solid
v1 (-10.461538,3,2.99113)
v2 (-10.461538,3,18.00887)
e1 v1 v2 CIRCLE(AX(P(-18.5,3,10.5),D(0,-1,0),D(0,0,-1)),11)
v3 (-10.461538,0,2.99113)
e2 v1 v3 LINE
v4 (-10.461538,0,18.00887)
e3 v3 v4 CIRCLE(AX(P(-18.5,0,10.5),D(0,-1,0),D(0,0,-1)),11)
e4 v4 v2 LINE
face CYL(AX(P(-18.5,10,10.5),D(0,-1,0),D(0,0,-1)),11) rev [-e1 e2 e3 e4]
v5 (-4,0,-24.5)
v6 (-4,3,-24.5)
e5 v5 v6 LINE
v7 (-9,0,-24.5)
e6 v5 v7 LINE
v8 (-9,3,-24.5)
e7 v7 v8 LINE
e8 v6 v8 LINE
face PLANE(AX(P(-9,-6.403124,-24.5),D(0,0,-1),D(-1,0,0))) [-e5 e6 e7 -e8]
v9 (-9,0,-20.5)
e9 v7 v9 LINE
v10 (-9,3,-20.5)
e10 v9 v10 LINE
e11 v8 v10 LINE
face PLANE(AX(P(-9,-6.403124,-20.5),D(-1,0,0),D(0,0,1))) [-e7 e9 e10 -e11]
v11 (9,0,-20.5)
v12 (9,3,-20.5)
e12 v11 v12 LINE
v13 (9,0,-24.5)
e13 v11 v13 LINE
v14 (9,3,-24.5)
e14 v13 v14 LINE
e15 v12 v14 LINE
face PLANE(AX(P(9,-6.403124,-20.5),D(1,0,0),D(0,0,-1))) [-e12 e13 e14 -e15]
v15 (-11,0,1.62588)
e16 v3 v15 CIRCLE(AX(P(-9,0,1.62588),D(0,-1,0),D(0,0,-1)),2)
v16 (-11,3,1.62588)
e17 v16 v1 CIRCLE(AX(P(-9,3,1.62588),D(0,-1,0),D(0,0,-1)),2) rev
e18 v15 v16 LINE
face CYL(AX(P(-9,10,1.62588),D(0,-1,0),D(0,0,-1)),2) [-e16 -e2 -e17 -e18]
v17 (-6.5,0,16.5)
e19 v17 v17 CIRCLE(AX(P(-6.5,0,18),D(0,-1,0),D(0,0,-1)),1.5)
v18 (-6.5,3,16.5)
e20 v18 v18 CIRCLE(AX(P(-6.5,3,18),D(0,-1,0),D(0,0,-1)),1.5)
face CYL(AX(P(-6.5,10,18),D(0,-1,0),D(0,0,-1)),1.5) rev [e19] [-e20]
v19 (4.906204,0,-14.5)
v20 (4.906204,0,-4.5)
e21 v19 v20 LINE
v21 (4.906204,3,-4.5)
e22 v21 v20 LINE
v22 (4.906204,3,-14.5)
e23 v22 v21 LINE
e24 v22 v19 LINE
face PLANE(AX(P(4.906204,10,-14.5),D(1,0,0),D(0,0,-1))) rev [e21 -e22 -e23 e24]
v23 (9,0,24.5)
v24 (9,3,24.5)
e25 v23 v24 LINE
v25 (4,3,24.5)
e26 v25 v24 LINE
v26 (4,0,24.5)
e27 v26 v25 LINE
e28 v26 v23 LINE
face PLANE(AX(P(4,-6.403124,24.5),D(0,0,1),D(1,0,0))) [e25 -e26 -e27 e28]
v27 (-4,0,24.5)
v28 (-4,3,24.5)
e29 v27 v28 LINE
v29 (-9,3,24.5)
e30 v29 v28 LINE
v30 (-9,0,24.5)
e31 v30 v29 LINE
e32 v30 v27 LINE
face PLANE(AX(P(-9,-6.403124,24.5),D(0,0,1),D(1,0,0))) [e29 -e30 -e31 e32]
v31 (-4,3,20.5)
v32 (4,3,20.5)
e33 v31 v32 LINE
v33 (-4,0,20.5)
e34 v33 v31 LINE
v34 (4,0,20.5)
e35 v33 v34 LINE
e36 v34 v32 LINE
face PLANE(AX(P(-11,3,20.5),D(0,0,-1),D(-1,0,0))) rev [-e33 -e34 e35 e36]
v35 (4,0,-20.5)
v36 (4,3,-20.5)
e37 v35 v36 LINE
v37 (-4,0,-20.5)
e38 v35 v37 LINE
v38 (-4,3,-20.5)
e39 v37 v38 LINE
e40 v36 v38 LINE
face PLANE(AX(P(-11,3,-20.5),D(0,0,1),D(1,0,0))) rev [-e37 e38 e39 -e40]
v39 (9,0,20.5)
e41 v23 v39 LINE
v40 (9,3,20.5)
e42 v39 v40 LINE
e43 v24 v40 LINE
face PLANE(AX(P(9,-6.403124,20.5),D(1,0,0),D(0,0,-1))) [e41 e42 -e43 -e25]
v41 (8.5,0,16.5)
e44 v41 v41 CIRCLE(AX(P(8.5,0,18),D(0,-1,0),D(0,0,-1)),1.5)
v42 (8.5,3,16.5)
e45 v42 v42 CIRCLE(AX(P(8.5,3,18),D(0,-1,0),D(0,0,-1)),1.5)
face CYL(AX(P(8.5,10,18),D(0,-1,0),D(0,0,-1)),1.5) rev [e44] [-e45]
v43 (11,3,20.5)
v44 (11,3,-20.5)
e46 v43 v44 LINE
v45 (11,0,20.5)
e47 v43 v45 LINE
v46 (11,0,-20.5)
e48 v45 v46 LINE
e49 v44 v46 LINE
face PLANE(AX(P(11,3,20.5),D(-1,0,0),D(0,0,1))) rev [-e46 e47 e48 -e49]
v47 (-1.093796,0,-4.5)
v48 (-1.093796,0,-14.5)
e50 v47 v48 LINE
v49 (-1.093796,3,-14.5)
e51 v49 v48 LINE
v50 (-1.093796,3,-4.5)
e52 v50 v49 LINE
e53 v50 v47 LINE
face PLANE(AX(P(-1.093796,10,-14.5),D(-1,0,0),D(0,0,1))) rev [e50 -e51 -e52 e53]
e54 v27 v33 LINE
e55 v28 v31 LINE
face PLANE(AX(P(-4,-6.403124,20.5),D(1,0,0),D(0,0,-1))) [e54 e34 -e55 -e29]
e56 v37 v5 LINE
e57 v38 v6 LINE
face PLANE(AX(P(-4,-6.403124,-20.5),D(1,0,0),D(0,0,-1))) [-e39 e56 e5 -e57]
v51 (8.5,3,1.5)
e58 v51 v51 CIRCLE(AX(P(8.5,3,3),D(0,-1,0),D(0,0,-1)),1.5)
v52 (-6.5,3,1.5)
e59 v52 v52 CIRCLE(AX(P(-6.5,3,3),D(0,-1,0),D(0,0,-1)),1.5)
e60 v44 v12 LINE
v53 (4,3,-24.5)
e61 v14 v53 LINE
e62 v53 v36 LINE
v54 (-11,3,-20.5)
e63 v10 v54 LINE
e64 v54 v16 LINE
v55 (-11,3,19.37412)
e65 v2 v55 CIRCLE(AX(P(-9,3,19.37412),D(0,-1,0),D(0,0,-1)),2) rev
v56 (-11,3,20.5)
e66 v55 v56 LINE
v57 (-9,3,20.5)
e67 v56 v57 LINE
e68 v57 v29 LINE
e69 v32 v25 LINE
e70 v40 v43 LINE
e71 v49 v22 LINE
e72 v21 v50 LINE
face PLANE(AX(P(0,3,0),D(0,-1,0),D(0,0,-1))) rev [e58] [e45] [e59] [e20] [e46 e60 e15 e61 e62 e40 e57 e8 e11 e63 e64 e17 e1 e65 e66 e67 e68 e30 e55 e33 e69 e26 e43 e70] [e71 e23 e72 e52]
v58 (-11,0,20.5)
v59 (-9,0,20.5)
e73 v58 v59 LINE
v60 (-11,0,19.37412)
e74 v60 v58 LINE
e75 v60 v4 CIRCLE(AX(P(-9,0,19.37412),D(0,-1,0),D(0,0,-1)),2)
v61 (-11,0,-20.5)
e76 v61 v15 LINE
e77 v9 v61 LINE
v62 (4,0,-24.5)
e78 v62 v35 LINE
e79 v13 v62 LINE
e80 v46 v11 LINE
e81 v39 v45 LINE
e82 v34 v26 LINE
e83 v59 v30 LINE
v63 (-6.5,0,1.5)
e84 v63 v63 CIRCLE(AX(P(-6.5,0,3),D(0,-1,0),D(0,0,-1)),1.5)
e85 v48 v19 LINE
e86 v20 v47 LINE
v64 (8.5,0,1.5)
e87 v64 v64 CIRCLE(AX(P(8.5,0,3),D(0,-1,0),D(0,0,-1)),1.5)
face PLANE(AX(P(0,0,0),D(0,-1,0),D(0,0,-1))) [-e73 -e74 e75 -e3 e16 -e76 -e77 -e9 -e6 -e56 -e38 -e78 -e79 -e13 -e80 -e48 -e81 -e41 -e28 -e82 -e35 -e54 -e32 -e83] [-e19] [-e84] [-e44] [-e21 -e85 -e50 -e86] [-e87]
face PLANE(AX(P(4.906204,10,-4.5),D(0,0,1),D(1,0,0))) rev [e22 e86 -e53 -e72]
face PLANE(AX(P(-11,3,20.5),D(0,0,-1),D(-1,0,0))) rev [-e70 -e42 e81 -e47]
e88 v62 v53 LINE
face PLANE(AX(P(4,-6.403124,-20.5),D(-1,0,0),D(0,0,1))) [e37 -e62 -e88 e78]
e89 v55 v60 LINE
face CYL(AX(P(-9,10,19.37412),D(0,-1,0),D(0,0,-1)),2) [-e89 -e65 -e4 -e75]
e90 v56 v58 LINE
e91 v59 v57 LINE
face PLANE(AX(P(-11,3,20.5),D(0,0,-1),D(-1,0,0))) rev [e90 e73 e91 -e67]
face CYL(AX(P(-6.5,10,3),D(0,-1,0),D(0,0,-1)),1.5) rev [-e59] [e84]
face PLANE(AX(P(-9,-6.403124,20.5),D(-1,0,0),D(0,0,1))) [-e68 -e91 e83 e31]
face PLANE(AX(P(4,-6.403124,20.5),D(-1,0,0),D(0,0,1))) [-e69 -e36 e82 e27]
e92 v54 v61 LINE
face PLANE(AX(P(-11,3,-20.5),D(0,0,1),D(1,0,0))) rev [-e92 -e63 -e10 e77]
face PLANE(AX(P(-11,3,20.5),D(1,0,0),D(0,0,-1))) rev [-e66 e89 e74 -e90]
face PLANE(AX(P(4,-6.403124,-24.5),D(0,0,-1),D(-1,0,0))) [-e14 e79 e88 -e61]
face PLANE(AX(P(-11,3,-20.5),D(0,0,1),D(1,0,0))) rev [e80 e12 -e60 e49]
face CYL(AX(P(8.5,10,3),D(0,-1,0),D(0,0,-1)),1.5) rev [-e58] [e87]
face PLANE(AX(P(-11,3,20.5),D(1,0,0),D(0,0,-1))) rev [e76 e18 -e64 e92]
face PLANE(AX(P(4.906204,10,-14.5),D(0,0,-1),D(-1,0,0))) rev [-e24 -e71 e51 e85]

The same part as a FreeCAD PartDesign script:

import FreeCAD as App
import Part
import Sketcher
from FreeCAD import Vector


def edges_at(feature, points):
    """Names of the edges that pass closest to the given points."""
    edges = feature.Shape.Edges
    near = lambda p: min(range(len(edges)), key=lambda i: edges[i].distToShape(Part.Vertex(*p))[0])
    return sorted({f"Edge{near(p) + 1}" for p in points})

doc = App.newDocument("Part")
body = doc.addObject("PartDesign::Body", "Body")

# Sketch on XZ plane
sketch1 = body.newObject("Sketcher::SketchObject", "Sketch")
sketch1.AttachmentSupport = (doc.getObject("XZ_Plane"), [""])
sketch1.MapMode = "FlatFace"
sketch1.addGeometry(Part.LineSegment(Vector(-11, -20, 0), Vector(-11, 20, 0)), False)
sketch1.addGeometry(Part.LineSegment(Vector(-11, 20, 0), Vector(11, 20, 0)), False)
sketch1.addGeometry(Part.LineSegment(Vector(11, 20, 0), Vector(11, -20, 0)), False)
sketch1.addGeometry(Part.LineSegment(Vector(11, -20, 0), Vector(-11, -20, 0)), False)
sketch1.addConstraint(Sketcher.Constraint("Coincident", 0, 2, 1, 1))
sketch1.addConstraint(Sketcher.Constraint("Coincident", 1, 2, 2, 1))
sketch1.addConstraint(Sketcher.Constraint("Coincident", 2, 2, 3, 1))
sketch1.addConstraint(Sketcher.Constraint("Coincident", 3, 2, 0, 1))
sketch1.addConstraint(Sketcher.Constraint("Vertical", 0))
sketch1.addConstraint(Sketcher.Constraint("Horizontal", 1))
sketch1.addConstraint(Sketcher.Constraint("Vertical", 2))
sketch1.addConstraint(Sketcher.Constraint("Horizontal", 3))
sketch1.addConstraint(Sketcher.Constraint("Symmetric", 0, 2, 2, 2, -1, 1))
sketch1.addConstraint(Sketcher.Constraint("DistanceX", 1, 1, 1, 2, 22.0))
sketch1.addConstraint(Sketcher.Constraint("DistanceY", 0, 1, 0, 2, 41.0))
pad1 = body.newObject("PartDesign::Pad", "Pad")
pad1.Profile = sketch1
pad1.Length = 3
pad1.Reversed = True

# Sketch on XZ plane
sketch2 = body.newObject("Sketcher::SketchObject", "Sketch001")
sketch2.AttachmentSupport = (doc.getObject("XZ_Plane"), [""])
sketch2.MapMode = "FlatFace"
sketch2.AttachmentOffset = App.Placement(Vector(0, 0, -3), App.Rotation())
sketch2.addGeometry(Part.LineSegment(Vector(-9, -24.5, 0), Vector(-9, -20.5, 0)), False)
sketch2.addGeometry(Part.LineSegment(Vector(-9, -20.5, 0), Vector(-4, -20.5, 0)), False)
sketch2.addGeometry(Part.LineSegment(Vector(-4, -20.5, 0), Vector(-4, -24.5, 0)), False)
sketch2.addGeometry(Part.LineSegment(Vector(-4, -24.5, 0), Vector(-9, -24.5, 0)), False)
sketch2.addGeometry(Part.LineSegment(Vector(4, -24.5, 0), Vector(4, -20.5, 0)), False)
sketch2.addGeometry(Part.LineSegment(Vector(4, -20.5, 0), Vector(9, -20.5, 0)), False)
sketch2.addGeometry(Part.LineSegment(Vector(9, -20.5, 0), Vector(9, -24.5, 0)), False)
sketch2.addGeometry(Part.LineSegment(Vector(9, -24.5, 0), Vector(4, -24.5, 0)), False)
sketch2.addGeometry(Part.LineSegment(Vector(4, 20.5, 0), Vector(4, 24.5, 0)), False)
sketch2.addGeometry(Part.LineSegment(Vector(4, 24.5, 0), Vector(9, 24.5, 0)), False)
sketch2.addGeometry(Part.LineSegment(Vector(9, 24.5, 0), Vector(9, 20.5, 0)), False)
sketch2.addGeometry(Part.LineSegment(Vector(9, 20.5, 0), Vector(4, 20.5, 0)), False)
sketch2.addGeometry(Part.LineSegment(Vector(-9, 20.5, 0), Vector(-9, 24.5, 0)), False)
sketch2.addGeometry(Part.LineSegment(Vector(-9, 24.5, 0), Vector(-4, 24.5, 0)), False)
sketch2.addGeometry(Part.LineSegment(Vector(-4, 24.5, 0), Vector(-4, 20.5, 0)), False)
sketch2.addGeometry(Part.LineSegment(Vector(-4, 20.5, 0), Vector(-9, 20.5, 0)), False)
sketch2.addConstraint(Sketcher.Constraint("Coincident", 0, 2, 1, 1))
sketch2.addConstraint(Sketcher.Constraint("Coincident", 1, 2, 2, 1))
sketch2.addConstraint(Sketcher.Constraint("Coincident", 2, 2, 3, 1))
sketch2.addConstraint(Sketcher.Constraint("Coincident", 3, 2, 0, 1))
sketch2.addConstraint(Sketcher.Constraint("Coincident", 4, 2, 5, 1))
sketch2.addConstraint(Sketcher.Constraint("Coincident", 5, 2, 6, 1))
sketch2.addConstraint(Sketcher.Constraint("Coincident", 6, 2, 7, 1))
sketch2.addConstraint(Sketcher.Constraint("Coincident", 7, 2, 4, 1))
sketch2.addConstraint(Sketcher.Constraint("Coincident", 8, 2, 9, 1))
sketch2.addConstraint(Sketcher.Constraint("Coincident", 9, 2, 10, 1))
sketch2.addConstraint(Sketcher.Constraint("Coincident", 10, 2, 11, 1))
sketch2.addConstraint(Sketcher.Constraint("Coincident", 11, 2, 8, 1))
sketch2.addConstraint(Sketcher.Constraint("Coincident", 12, 2, 13, 1))
sketch2.addConstraint(Sketcher.Constraint("Coincident", 13, 2, 14, 1))
sketch2.addConstraint(Sketcher.Constraint("Coincident", 14, 2, 15, 1))
sketch2.addConstraint(Sketcher.Constraint("Coincident", 15, 2, 12, 1))
sketch2.addConstraint(Sketcher.Constraint("Vertical", 0))
sketch2.addConstraint(Sketcher.Constraint("Horizontal", 1))
sketch2.addConstraint(Sketcher.Constraint("Vertical", 2))
sketch2.addConstraint(Sketcher.Constraint("Horizontal", 3))
sketch2.addConstraint(Sketcher.Constraint("Vertical", 4))
sketch2.addConstraint(Sketcher.Constraint("Horizontal", 5))
sketch2.addConstraint(Sketcher.Constraint("Vertical", 6))
sketch2.addConstraint(Sketcher.Constraint("Horizontal", 7))
sketch2.addConstraint(Sketcher.Constraint("Vertical", 8))
sketch2.addConstraint(Sketcher.Constraint("Horizontal", 9))
sketch2.addConstraint(Sketcher.Constraint("Vertical", 10))
sketch2.addConstraint(Sketcher.Constraint("Horizontal", 11))
sketch2.addConstraint(Sketcher.Constraint("Vertical", 12))
sketch2.addConstraint(Sketcher.Constraint("Horizontal", 13))
sketch2.addConstraint(Sketcher.Constraint("Vertical", 14))
sketch2.addConstraint(Sketcher.Constraint("Horizontal", 15))
sketch2.addConstraint(Sketcher.Constraint("Symmetric", 2, 2, 8, 2, -1, 1))
sketch2.addConstraint(Sketcher.Constraint("Symmetric", 0, 2, 10, 2, -1, 1))
sketch2.addConstraint(Sketcher.Constraint("Symmetric", 6, 2, 12, 2, -1, 1))
sketch2.addConstraint(Sketcher.Constraint("Symmetric", 4, 2, 14, 2, -1, 1))
sketch2.addConstraint(Sketcher.Constraint("Symmetric", 1, 2, 4, 2, -2))
sketch2.addConstraint(Sketcher.Constraint("Symmetric", 3, 2, 6, 2, -2))
sketch2.addConstraint(Sketcher.Constraint("DistanceX", 1, 1, 1, 2, 5.0))
sketch2.addConstraint(Sketcher.Constraint("DistanceY", 0, 1, 0, 2, 4.0))
sketch2.addConstraint(Sketcher.Constraint("DistanceX", 0, 2, -1, 1, 9.0))
sketch2.addConstraint(Sketcher.Constraint("DistanceY", 4, 2, 8, 2, 45.0))
pad2 = body.newObject("PartDesign::Pad", "Pad001")
pad2.Profile = sketch2
pad2.Length = 3

# Sketch on XZ plane
sketch3 = body.newObject("Sketcher::SketchObject", "Sketch002")
sketch3.AttachmentSupport = (doc.getObject("XZ_Plane"), [""])
sketch3.MapMode = "FlatFace"
sketch3.addGeometry(Part.LineSegment(Vector(-1, -4, 0), Vector(-1, -14, 0)), False)
sketch3.addGeometry(Part.LineSegment(Vector(-1, -14, 0), Vector(5, -14, 0)), False)
sketch3.addGeometry(Part.LineSegment(Vector(5, -14, 0), Vector(5, -4, 0)), False)
sketch3.addGeometry(Part.LineSegment(Vector(5, -4, 0), Vector(-1, -4, 0)), False)
sketch3.addConstraint(Sketcher.Constraint("Coincident", 0, 2, 1, 1))
sketch3.addConstraint(Sketcher.Constraint("Coincident", 1, 2, 2, 1))
sketch3.addConstraint(Sketcher.Constraint("Coincident", 2, 2, 3, 1))
sketch3.addConstraint(Sketcher.Constraint("Coincident", 3, 2, 0, 1))
sketch3.addConstraint(Sketcher.Constraint("Vertical", 0))
sketch3.addConstraint(Sketcher.Constraint("Horizontal", 1))
sketch3.addConstraint(Sketcher.Constraint("Vertical", 2))
sketch3.addConstraint(Sketcher.Constraint("Horizontal", 3))
sketch3.addConstraint(Sketcher.Constraint("DistanceX", 1, 1, 1, 2, 6.0))
sketch3.addConstraint(Sketcher.Constraint("DistanceY", 0, 2, 0, 1, 10.0))
sketch3.addConstraint(Sketcher.Constraint("DistanceY", 0, 2, -1, 1, 14.5))
sketch3.addConstraint(Sketcher.Constraint("DistanceX", 0, 2, -1, 1, 1.093796))
pocket1 = body.newObject("PartDesign::Pocket", "Pocket")
pocket1.Profile = sketch3
pocket1.Length = 10

# Sketch on XZ plane
sketch4 = body.newObject("Sketcher::SketchObject", "Sketch003")
sketch4.AttachmentSupport = (doc.getObject("XZ_Plane"), [""])
sketch4.MapMode = "FlatFace"
sketch4.addGeometry(Part.Circle(Vector(-6.5, 18, 0), Vector(0, 0, 1), 1.5), False)
sketch4.addGeometry(Part.Circle(Vector(8.5, 18, 0), Vector(0, 0, 1), 1.5), False)
sketch4.addGeometry(Part.Circle(Vector(-6.5, 3, 0), Vector(0, 0, 1), 1.5), False)
sketch4.addGeometry(Part.Circle(Vector(8.5, 3, 0), Vector(0, 0, 1), 1.5), False)
sketch4.addConstraint(Sketcher.Constraint("Equal", 0, 1))
sketch4.addConstraint(Sketcher.Constraint("Equal", 1, 2))
sketch4.addConstraint(Sketcher.Constraint("Equal", 2, 3))
sketch4.addConstraint(Sketcher.Constraint("Horizontal", 0, 3, 1, 3))
sketch4.addConstraint(Sketcher.Constraint("Horizontal", 2, 3, 3, 3))
sketch4.addConstraint(Sketcher.Constraint("Vertical", 0, 3, 2, 3))
sketch4.addConstraint(Sketcher.Constraint("Vertical", 1, 3, 3, 3))
sketch4.addConstraint(Sketcher.Constraint("Diameter", 0, 3.0))
sketch4.addConstraint(Sketcher.Constraint("DistanceY", -1, 1, 0, 3, 18.0))
sketch4.addConstraint(Sketcher.Constraint("DistanceY", -1, 1, 2, 3, 3.0))
sketch4.addConstraint(Sketcher.Constraint("DistanceX", 0, 3, 1, 3, 15.0))
sketch4.addConstraint(Sketcher.Constraint("DistanceX", 0, 3, -1, 1, 6.5))
pocket2 = body.newObject("PartDesign::Pocket", "Pocket001")
pocket2.Profile = sketch4
pocket2.Length = 10

# Sketch on XZ plane
sketch5 = body.newObject("Sketcher::SketchObject", "Sketch004")
sketch5.AttachmentSupport = (doc.getObject("XZ_Plane"), [""])
sketch5.MapMode = "FlatFace"
sketch5.addGeometry(Part.Circle(Vector(-18, 10, 0), Vector(0, 0, 1), 11), False)
sketch5.addConstraint(Sketcher.Constraint("Diameter", 0, 22.0))
sketch5.addConstraint(Sketcher.Constraint("DistanceX", 0, 3, -1, 1, 18.5))
sketch5.addConstraint(Sketcher.Constraint("DistanceY", -1, 1, 0, 3, 10.5))
pocket3 = body.newObject("PartDesign::Pocket", "Pocket002")
pocket3.Profile = sketch5
pocket3.Length = 10
doc.recompute()

fillet = body.newObject("PartDesign::Fillet", "Fillet")
fillet.Base = (pocket3, edges_at(pocket3, [(-11, 1.5, 18.547), (-11, 1.5, 2.453)]))
fillet.Radius = 2

doc.recompute()
